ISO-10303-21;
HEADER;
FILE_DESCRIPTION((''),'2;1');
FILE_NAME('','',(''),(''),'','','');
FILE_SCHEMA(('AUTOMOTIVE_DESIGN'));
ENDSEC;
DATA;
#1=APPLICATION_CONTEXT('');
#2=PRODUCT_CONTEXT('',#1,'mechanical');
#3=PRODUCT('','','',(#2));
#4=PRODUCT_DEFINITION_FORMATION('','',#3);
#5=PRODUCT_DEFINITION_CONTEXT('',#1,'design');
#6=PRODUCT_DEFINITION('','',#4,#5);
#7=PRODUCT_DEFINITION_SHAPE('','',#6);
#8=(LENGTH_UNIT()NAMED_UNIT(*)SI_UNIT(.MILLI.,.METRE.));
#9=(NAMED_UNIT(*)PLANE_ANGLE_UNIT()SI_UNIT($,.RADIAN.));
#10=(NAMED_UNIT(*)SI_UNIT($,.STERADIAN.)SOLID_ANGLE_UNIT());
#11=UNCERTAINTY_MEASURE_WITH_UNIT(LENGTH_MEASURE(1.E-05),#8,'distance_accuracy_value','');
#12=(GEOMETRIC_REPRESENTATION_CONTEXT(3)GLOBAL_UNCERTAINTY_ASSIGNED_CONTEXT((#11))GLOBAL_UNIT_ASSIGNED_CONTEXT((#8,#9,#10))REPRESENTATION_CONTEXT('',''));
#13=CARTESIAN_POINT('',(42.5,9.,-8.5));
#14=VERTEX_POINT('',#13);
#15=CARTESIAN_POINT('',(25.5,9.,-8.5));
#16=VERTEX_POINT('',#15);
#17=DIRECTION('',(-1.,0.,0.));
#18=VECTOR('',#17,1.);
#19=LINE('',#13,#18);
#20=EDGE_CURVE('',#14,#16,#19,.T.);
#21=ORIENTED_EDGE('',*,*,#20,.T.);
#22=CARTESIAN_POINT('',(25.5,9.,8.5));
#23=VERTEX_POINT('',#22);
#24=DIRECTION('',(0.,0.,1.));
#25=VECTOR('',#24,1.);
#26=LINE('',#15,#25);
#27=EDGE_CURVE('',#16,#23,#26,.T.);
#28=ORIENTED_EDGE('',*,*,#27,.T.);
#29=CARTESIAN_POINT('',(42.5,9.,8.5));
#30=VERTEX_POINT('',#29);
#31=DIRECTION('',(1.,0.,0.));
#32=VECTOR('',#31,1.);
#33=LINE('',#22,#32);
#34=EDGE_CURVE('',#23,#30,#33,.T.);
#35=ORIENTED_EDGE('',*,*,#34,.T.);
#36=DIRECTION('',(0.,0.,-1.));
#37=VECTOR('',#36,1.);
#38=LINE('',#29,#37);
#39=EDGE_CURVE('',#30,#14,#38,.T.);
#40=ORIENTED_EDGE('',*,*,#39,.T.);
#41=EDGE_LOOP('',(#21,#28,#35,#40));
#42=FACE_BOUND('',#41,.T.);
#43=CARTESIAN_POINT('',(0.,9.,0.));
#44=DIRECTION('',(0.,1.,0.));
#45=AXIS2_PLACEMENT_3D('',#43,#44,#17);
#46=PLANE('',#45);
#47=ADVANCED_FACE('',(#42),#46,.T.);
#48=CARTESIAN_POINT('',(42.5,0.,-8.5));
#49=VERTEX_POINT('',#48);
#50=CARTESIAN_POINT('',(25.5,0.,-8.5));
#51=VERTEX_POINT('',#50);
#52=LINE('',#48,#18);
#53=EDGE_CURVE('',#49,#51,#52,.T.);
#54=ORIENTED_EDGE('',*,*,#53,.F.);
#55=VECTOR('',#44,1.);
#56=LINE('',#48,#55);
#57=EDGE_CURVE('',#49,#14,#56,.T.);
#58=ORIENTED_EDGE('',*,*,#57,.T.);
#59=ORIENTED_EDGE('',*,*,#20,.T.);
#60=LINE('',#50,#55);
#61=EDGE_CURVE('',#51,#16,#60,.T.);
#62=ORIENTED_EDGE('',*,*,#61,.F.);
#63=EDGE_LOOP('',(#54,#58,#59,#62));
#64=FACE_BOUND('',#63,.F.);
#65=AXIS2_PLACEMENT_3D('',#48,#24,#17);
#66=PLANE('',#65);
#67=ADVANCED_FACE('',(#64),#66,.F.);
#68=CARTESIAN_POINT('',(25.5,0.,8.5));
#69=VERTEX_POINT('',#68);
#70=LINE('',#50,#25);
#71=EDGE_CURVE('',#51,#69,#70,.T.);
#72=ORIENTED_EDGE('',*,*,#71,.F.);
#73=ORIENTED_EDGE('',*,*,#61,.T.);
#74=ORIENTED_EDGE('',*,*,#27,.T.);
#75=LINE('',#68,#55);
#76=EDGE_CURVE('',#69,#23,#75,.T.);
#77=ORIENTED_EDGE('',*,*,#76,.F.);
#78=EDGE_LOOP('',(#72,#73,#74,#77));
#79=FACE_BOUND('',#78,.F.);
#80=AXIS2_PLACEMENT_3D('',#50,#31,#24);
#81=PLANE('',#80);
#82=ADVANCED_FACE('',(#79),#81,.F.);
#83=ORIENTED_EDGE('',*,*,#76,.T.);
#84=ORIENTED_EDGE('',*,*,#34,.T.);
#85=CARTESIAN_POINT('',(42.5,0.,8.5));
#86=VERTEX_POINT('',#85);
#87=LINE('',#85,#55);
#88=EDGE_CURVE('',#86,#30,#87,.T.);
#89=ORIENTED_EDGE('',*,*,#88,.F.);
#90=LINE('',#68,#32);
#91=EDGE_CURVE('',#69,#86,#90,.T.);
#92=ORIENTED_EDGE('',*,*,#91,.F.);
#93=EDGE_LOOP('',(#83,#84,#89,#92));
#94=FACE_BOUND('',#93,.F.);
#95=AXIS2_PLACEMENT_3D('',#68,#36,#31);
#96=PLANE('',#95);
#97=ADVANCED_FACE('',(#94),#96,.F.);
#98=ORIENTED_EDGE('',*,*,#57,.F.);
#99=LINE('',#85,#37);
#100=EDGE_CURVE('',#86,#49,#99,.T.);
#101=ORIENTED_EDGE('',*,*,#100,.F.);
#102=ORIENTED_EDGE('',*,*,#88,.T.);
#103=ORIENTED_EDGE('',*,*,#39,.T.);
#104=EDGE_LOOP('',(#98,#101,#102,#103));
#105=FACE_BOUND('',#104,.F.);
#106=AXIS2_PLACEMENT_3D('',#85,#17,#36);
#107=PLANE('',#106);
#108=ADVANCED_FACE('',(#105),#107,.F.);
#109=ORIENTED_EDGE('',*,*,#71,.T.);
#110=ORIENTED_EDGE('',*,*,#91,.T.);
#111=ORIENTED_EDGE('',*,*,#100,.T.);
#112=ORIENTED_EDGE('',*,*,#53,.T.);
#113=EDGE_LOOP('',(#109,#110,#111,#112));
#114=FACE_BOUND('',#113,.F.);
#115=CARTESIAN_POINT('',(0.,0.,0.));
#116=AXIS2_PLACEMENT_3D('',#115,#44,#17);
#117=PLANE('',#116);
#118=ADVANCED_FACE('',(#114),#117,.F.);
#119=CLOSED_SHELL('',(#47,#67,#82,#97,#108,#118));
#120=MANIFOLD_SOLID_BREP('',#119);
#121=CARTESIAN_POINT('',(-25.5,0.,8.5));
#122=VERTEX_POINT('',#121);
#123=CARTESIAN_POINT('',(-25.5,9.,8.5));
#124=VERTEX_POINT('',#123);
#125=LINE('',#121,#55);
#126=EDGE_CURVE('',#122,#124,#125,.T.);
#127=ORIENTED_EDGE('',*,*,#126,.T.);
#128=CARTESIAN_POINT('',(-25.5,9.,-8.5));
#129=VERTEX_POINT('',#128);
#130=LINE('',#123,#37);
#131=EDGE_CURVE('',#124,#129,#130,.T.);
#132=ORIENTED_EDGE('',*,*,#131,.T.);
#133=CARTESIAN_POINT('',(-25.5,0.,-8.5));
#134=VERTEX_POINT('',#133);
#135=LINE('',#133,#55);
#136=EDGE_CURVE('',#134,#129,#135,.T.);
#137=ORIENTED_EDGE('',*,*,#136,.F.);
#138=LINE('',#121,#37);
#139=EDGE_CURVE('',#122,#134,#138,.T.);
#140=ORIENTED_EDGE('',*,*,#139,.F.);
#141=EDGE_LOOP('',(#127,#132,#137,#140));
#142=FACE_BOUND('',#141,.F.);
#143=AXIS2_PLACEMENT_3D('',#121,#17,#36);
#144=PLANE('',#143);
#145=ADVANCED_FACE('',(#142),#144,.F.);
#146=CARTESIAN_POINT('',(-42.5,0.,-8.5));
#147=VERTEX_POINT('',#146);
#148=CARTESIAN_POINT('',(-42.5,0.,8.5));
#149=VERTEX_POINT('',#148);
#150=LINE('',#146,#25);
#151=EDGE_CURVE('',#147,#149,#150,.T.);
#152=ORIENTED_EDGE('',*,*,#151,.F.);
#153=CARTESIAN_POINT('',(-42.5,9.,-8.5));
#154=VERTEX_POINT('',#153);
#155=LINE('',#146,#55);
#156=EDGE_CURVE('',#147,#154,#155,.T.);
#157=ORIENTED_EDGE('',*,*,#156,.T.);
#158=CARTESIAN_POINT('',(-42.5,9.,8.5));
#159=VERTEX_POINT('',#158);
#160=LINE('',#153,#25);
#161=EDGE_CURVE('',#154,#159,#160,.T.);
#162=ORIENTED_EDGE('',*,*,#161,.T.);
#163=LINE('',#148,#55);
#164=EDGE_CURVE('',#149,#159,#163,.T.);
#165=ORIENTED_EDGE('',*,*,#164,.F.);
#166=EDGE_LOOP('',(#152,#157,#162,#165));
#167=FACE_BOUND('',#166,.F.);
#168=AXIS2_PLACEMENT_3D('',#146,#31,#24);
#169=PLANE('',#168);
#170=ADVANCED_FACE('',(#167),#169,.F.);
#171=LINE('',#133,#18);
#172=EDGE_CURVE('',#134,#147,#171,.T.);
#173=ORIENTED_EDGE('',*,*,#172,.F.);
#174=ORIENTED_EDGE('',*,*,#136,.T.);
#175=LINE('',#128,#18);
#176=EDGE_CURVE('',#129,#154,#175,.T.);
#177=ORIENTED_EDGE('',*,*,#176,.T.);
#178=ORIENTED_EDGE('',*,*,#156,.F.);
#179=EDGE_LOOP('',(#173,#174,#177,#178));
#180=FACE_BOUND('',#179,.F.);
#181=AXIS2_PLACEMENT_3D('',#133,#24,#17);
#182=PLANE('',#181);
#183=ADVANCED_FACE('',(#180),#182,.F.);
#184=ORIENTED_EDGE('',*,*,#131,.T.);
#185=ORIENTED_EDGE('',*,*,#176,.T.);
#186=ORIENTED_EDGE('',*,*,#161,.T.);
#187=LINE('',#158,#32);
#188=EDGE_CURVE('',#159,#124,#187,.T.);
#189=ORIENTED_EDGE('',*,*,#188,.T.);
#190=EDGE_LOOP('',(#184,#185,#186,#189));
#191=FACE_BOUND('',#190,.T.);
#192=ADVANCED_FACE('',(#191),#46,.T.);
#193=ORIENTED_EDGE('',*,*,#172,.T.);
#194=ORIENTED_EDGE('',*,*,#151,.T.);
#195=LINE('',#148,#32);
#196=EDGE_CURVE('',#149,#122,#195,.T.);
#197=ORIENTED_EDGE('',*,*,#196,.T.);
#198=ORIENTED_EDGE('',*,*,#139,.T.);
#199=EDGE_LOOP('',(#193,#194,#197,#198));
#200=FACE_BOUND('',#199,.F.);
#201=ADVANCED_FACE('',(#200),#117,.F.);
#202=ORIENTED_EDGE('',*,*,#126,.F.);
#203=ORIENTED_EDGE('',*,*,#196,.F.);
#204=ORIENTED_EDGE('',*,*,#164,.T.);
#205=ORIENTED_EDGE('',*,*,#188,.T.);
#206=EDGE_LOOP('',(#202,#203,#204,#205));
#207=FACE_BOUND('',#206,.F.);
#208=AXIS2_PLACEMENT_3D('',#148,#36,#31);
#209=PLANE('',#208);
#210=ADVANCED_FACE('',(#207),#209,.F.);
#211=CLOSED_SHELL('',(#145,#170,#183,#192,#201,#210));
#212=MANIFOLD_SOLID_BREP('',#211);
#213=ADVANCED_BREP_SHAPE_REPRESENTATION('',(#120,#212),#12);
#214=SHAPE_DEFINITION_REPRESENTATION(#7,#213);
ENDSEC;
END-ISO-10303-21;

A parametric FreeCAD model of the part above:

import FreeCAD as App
import Part
import Sketcher

V = App.Vector


def add_polygon(sketch, points):
    """Adds a closed chain of lines whose ends are joined by coincident constraints."""
    first, n = sketch.GeometryCount, len(points)
    for a, b in zip(points, points[1:] + points[:1]):
        sketch.addGeometry(Part.LineSegment(App.Vector(*a, 0), App.Vector(*b, 0)), False)
    for i in range(n):
        sketch.addConstraint(Sketcher.Constraint("Coincident", first + i, 2, first + (i + 1) % n, 1))

doc = App.newDocument("Part")
params = doc.addObject("Spreadsheet::Sheet", "Params")
for row, (alias, value) in enumerate([
    ("sketch1_width", "17 mm"),
    ("pad1_length", "9 mm"),
], start=1):
    params.set(f"A{row}", alias)
    params.set(f"B{row}", "=" + value)
    params.setAlias(f"B{row}", alias)

body = doc.addObject("PartDesign::Body", "Body")
body.AllowCompound = True

sketch1 = body.newObject("Sketcher::SketchObject", "Sketch")
sketch1.AttachmentSupport = (doc.getObject("XZ_Plane"), [""])
sketch1.MapMode = "FlatFace"
add_polygon(sketch1, [(-42, -8), (-42, 8), (-26, 8), (-26, -8)])
add_polygon(sketch1, [(26, -8), (26, 8), (42, 8), (42, -8)])
sketch1.addConstraint([
    Sketcher.Constraint("Vertical", 0),
    Sketcher.Constraint("Horizontal", 1),
    Sketcher.Constraint("Vertical", 2),
    Sketcher.Constraint("Horizontal", 3),
    Sketcher.Constraint("Vertical", 4),
    Sketcher.Constraint("Horizontal", 5),
    Sketcher.Constraint("Vertical", 6),
    Sketcher.Constraint("Horizontal", 7),
    Sketcher.Constraint("Symmetric", 2, 2, 4, 2, -1, 1),
    Sketcher.Constraint("Symmetric", 0, 2, 6, 2, -1, 1),
    Sketcher.Constraint("Horizontal", 1, 2, 4, 2),
    Sketcher.Constraint("Equal", 7, 0),
    Sketcher.Constraint("DistanceX", 1, 1, 1, 2, 17.0),
    Sketcher.Constraint("DistanceX", 1, 2, 4, 2, 51.0),
])
sketch1.setExpression("Constraints[20]", "Params.sketch1_width")
pad1 = body.newObject("PartDesign::Pad", "Pad")
pad1.Profile = sketch1
pad1.setExpression("Length", "Params.pad1_length")
pad1.Reversed = True

doc.recompute()
